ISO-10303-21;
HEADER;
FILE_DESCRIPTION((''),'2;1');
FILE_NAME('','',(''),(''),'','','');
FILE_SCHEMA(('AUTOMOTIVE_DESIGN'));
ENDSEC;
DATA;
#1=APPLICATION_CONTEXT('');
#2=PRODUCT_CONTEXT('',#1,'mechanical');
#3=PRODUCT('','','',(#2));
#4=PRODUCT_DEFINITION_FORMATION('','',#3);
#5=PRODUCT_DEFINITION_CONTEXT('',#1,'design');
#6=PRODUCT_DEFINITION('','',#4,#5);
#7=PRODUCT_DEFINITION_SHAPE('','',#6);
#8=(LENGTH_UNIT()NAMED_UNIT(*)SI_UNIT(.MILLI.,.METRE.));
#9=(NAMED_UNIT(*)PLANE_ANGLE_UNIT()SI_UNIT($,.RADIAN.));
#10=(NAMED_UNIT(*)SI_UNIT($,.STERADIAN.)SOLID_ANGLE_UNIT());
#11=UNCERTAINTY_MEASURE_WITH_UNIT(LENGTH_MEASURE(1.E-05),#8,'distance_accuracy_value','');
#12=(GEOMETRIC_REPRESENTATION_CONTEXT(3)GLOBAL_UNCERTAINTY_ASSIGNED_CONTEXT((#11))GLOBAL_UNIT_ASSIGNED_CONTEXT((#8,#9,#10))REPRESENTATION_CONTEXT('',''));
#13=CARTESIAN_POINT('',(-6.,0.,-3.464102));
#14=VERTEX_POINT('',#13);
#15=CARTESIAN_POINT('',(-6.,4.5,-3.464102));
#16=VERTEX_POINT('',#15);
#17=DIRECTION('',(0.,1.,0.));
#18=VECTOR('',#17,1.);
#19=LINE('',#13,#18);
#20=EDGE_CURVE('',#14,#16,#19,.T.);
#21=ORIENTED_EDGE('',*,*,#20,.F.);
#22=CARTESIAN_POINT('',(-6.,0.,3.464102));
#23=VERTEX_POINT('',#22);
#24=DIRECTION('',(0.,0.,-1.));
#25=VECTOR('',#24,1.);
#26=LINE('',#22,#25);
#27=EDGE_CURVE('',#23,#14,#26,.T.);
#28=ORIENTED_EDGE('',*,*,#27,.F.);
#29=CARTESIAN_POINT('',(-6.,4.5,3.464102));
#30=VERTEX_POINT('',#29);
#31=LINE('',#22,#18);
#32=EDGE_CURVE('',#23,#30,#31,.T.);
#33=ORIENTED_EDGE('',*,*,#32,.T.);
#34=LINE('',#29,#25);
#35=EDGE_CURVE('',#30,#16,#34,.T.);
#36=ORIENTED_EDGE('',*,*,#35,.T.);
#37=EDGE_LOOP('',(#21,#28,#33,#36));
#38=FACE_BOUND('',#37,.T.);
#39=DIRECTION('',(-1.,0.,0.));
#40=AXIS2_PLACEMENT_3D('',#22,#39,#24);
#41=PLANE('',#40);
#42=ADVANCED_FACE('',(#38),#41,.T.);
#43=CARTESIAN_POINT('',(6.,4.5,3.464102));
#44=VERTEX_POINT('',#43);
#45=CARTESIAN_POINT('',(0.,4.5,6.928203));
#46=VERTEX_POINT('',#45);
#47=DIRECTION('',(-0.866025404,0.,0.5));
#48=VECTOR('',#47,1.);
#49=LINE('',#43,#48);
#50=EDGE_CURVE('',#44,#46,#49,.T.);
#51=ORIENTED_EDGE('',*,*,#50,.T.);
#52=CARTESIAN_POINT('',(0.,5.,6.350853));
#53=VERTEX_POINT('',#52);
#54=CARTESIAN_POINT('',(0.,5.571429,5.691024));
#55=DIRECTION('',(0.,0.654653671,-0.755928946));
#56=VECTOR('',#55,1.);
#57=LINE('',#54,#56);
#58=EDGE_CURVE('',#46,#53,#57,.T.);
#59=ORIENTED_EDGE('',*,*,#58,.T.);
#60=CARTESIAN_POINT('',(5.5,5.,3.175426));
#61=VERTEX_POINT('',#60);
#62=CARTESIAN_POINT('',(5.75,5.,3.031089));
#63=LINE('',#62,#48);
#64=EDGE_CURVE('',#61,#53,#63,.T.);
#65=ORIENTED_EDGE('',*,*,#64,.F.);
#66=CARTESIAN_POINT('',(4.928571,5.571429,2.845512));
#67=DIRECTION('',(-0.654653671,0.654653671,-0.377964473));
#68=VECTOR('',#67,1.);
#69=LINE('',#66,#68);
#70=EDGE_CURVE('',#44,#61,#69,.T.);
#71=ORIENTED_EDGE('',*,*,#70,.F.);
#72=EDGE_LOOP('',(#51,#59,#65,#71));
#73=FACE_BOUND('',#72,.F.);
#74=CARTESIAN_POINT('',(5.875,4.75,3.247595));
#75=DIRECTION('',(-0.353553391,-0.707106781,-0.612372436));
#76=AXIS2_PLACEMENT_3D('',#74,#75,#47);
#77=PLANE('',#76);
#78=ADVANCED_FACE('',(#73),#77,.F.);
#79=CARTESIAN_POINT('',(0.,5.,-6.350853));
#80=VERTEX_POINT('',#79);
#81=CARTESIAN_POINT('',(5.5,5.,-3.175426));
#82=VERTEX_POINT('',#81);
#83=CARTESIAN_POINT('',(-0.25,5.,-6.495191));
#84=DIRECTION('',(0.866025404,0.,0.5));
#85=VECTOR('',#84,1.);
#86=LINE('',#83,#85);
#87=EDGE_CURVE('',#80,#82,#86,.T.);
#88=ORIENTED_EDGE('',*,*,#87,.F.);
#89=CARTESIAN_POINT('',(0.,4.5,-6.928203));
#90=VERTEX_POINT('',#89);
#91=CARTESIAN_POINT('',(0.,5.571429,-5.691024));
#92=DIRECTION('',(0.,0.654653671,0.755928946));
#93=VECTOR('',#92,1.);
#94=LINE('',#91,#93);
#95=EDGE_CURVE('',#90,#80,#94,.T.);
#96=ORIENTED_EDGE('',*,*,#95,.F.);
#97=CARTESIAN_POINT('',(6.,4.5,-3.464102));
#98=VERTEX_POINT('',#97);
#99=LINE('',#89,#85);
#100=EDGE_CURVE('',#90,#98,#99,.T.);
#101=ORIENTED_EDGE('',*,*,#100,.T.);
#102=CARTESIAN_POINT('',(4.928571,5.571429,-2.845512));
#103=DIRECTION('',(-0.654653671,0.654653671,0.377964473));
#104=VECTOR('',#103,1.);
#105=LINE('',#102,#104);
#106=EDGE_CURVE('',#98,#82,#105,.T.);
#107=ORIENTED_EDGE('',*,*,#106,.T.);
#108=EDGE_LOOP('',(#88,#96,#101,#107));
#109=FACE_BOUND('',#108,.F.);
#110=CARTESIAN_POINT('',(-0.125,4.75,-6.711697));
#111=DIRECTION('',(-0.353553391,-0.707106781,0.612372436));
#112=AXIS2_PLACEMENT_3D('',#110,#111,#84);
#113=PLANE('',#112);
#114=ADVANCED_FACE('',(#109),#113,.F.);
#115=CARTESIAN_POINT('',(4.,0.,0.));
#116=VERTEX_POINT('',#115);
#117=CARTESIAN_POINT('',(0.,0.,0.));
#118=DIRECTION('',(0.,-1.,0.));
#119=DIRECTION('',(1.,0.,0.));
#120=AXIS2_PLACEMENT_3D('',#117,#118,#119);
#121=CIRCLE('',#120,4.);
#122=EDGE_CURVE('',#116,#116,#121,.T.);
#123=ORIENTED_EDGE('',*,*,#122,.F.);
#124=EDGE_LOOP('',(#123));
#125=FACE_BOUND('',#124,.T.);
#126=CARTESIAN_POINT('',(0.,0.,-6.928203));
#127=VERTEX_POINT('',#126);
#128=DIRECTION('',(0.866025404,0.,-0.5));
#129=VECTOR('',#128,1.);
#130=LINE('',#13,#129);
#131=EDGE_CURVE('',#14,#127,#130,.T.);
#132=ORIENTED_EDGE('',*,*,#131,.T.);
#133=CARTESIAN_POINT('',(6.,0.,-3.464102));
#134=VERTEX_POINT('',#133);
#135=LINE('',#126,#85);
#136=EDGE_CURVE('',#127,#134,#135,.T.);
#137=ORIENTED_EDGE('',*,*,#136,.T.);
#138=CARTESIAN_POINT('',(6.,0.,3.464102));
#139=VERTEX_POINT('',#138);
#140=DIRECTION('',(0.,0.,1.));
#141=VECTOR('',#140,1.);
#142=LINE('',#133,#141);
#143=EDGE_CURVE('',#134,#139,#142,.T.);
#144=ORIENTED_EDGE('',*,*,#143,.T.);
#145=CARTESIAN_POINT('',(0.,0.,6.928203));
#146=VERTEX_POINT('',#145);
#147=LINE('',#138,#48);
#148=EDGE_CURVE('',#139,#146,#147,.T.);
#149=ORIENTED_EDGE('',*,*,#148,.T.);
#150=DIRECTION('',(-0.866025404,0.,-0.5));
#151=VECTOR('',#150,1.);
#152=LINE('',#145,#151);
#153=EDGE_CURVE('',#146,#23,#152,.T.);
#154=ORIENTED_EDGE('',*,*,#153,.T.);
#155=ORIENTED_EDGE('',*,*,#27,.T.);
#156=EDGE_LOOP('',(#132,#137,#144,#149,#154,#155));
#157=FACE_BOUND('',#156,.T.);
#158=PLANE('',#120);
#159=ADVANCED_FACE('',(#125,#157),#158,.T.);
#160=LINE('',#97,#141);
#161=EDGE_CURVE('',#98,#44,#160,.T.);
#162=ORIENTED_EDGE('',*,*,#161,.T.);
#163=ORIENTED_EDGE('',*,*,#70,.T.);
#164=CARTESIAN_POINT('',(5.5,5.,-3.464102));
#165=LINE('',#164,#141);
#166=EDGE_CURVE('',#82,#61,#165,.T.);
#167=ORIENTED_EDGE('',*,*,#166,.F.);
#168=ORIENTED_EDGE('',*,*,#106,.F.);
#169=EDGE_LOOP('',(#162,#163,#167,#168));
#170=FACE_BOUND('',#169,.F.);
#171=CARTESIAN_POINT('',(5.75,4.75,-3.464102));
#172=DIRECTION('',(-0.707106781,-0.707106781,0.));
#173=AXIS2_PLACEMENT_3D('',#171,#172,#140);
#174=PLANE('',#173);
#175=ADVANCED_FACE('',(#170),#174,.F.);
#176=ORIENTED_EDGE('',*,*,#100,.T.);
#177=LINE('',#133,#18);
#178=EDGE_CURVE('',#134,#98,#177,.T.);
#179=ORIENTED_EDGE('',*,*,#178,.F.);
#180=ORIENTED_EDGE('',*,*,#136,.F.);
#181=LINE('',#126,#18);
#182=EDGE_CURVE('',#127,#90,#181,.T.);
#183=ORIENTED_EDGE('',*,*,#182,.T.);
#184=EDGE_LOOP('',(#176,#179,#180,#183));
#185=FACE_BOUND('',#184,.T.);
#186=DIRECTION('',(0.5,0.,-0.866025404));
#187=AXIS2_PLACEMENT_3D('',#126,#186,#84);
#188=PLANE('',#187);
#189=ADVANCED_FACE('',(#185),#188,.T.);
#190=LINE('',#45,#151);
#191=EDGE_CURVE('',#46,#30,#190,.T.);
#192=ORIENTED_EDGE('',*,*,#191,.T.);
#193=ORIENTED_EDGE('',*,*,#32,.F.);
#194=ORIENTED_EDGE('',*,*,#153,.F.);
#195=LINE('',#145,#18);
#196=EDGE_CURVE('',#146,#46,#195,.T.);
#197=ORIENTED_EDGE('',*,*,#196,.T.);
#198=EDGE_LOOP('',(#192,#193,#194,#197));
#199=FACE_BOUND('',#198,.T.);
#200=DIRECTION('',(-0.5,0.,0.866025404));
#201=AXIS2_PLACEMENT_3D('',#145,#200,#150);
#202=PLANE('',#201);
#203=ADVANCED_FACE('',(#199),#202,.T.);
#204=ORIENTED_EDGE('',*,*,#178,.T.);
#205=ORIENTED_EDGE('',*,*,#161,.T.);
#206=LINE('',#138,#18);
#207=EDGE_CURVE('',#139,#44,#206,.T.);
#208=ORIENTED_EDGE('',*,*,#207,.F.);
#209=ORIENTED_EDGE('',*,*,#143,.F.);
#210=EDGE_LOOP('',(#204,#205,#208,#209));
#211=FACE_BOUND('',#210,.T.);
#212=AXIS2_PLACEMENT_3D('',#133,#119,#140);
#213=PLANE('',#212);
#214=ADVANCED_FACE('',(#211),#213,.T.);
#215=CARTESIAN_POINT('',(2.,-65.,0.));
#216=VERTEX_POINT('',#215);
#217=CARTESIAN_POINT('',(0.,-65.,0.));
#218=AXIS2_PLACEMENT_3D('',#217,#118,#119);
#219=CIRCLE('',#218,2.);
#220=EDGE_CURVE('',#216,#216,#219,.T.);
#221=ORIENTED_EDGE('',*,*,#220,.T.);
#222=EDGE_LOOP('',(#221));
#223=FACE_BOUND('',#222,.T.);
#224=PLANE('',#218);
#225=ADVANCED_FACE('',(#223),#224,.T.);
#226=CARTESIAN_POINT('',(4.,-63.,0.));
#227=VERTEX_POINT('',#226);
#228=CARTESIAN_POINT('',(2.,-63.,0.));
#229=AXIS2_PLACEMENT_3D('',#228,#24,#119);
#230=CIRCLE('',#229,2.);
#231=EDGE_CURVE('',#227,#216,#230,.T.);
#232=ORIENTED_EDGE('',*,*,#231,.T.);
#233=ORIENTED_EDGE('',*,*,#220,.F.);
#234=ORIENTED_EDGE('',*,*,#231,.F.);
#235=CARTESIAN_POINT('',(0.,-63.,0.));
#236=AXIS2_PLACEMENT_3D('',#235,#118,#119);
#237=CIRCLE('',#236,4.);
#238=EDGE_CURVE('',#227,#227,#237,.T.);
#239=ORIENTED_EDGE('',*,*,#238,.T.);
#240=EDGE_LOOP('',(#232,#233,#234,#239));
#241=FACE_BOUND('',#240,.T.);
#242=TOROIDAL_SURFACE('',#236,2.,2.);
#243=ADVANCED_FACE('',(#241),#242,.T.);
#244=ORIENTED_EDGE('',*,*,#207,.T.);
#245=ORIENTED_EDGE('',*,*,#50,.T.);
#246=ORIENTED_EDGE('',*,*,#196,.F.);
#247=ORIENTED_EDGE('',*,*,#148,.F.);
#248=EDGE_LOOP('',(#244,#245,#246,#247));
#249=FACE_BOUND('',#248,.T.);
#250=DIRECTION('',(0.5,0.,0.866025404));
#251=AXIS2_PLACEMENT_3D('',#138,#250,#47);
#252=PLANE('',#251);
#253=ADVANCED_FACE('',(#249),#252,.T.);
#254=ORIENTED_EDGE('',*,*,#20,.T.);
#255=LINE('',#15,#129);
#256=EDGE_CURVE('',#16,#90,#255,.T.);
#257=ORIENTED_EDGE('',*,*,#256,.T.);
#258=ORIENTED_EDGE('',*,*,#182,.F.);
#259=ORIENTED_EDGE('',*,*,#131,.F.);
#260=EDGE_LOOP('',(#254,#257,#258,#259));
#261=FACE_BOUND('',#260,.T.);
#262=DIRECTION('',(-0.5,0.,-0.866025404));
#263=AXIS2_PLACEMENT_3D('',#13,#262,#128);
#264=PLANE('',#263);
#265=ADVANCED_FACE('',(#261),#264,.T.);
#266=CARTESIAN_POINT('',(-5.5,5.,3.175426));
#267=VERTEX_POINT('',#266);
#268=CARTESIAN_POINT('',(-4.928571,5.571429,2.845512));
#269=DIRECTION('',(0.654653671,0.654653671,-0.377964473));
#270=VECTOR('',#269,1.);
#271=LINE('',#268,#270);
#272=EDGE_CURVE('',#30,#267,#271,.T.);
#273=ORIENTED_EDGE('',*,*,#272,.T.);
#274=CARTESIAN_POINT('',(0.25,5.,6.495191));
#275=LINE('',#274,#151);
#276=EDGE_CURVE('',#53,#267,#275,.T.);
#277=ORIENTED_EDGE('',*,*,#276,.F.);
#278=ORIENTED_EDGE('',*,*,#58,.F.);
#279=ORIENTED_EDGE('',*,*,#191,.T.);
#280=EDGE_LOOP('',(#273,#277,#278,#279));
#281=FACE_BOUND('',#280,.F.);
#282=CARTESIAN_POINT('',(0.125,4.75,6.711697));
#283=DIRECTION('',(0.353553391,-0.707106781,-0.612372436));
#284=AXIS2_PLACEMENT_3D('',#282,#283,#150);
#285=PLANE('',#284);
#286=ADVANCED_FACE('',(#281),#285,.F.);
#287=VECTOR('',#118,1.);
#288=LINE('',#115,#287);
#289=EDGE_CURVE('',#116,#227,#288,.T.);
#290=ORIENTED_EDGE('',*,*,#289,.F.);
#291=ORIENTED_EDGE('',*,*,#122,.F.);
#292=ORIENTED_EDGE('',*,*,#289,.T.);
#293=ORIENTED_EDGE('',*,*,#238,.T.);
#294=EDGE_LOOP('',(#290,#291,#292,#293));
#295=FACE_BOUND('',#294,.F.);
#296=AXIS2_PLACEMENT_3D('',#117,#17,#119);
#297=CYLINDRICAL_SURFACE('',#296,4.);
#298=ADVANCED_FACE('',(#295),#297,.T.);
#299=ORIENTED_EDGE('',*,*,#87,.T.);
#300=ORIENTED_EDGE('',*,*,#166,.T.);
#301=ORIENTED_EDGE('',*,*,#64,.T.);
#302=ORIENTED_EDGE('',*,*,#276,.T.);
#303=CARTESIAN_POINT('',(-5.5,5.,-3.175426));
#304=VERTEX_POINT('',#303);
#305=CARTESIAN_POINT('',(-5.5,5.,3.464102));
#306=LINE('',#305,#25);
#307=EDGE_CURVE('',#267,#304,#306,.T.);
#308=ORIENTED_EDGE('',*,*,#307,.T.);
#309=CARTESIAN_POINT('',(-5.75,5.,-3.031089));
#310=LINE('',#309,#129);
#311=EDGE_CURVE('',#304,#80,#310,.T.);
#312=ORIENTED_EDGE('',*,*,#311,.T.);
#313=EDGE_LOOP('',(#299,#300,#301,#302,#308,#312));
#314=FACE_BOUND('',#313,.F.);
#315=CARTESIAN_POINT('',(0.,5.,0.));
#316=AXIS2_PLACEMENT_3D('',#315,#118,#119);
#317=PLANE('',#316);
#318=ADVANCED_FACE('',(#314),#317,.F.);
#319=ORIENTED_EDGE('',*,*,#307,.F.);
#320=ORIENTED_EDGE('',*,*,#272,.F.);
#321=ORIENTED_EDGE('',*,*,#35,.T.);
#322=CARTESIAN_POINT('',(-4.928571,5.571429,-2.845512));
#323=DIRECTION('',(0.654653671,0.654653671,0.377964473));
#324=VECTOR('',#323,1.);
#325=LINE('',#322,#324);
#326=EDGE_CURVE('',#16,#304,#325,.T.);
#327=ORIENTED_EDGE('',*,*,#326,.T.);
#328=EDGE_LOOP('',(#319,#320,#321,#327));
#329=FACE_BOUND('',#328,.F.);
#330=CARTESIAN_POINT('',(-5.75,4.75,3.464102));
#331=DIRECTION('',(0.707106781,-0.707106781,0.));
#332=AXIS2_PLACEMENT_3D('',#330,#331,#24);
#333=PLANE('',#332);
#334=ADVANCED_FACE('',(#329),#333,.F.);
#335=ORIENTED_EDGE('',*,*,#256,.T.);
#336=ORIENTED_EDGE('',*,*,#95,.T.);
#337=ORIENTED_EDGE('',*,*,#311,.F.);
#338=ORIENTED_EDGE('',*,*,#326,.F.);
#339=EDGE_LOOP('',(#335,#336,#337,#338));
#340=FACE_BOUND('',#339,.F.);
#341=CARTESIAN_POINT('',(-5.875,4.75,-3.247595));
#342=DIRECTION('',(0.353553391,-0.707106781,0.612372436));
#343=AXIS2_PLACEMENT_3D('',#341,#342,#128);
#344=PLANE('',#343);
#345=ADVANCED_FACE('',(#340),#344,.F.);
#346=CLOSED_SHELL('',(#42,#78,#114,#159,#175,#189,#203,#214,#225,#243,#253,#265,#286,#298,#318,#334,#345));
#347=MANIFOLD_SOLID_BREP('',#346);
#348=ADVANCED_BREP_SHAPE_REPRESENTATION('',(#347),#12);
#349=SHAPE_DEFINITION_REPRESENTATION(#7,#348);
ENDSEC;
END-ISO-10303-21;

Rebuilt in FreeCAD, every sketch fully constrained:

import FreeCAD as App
import Part
import Sketcher
Q = App.Units.Quantity


def edges_at(feature, points):
    """Names of the edges that pass closest to the given points."""
    edges = feature.Shape.Edges
    near = lambda p: min(range(len(edges)), key=lambda i: edges[i].distToShape(Part.Vertex(*p))[0])
    return sorted({f"Edge{near(p) + 1}" for p in points})

doc = App.newDocument("Part")
body = doc.addObject("PartDesign::Body", "Body")

# Sketch on XZ plane
sketch1 = doc.addObject("Sketcher::SketchObject", "Sketch")
body.addObject(sketch1)
sketch1.AttachmentSupport = (doc.XZ_Plane, [""])
sketch1.MapMode = "FlatFace"
sketch1.addGeometry(Part.LineSegment(App.Vector(0, 6.928203, 0), App.Vector(-6, 3.464102, 0)), False)
sketch1.addGeometry(Part.LineSegment(App.Vector(-6, 3.464102, 0), App.Vector(-6, -3.464102, 0)), False)
sketch1.addGeometry(Part.LineSegment(App.Vector(-6, -3.464102, 0), App.Vector(0, -6.928203, 0)), False)
sketch1.addGeometry(Part.LineSegment(App.Vector(0, -6.928203, 0), App.Vector(6, -3.464102, 0)), False)
sketch1.addGeometry(Part.LineSegment(App.Vector(6, -3.464102, 0), App.Vector(6, 3.464102, 0)), False)
sketch1.addGeometry(Part.LineSegment(App.Vector(6, 3.464102, 0), App.Vector(0, 6.928203, 0)), False)
sketch1.addConstraint(Sketcher.Constraint("Coincident", 0, 2, 1, 1))
sketch1.addConstraint(Sketcher.Constraint("Coincident", 1, 2, 2, 1))
sketch1.addConstraint(Sketcher.Constraint("Coincident", 2, 2, 3, 1))
sketch1.addConstraint(Sketcher.Constraint("Coincident", 3, 2, 4, 1))
sketch1.addConstraint(Sketcher.Constraint("Coincident", 4, 2, 5, 1))
sketch1.addConstraint(Sketcher.Constraint("Coincident", 5, 2, 0, 1))
sketch1.addConstraint(Sketcher.Constraint("Vertical", 1))
sketch1.addConstraint(Sketcher.Constraint("Vertical", 4))
sketch1.addConstraint(Sketcher.Constraint("Symmetric", 0, 2, 3, 2, -1, 1))
sketch1.addConstraint(Sketcher.Constraint("Symmetric", 2, 2, 5, 2, -1, 1))
sketch1.addConstraint(Sketcher.Constraint("PointOnObject", 2, 2, -2))
sketch1.addConstraint(Sketcher.Constraint("Parallel", 2, 5))
sketch1.addConstraint(Sketcher.Constraint("Horizontal", 1, 2, 3, 2))
sketch1.addConstraint(Sketcher.Constraint("Angle", 0, Q("-150 deg")))
sketch1.addConstraint(Sketcher.Constraint("DistanceX", 0, 2, -1, 1, Q("6 mm")))
sketch1.addConstraint(Sketcher.Constraint("DistanceY", -1, 1, 0, 2, Q("3.464102 mm")))
pad1 = doc.addObject("PartDesign::Pad", "Pad")
body.addObject(pad1)
pad1.Profile = sketch1
pad1.Length = 5
pad1.Reversed = True
doc.recompute()

chamfer = doc.addObject("PartDesign::Chamfer", "Chamfer")
body.addObject(chamfer)
chamfer.Base = (pad1, edges_at(pad1, [
    (-3, 5, 5.196),
    (-6, 5, 0),
    (-3, 5, -5.196),
    (3, 5, -5.196),
    (6, 5, 0),
    (3, 5, 5.196),
]))
chamfer.Size = 0.5

# Sketch on XZ plane
sketch2 = doc.addObject("Sketcher::SketchObject", "Sketch001")
body.addObject(sketch2)
sketch2.AttachmentSupport = (doc.XZ_Plane, [""])
sketch2.MapMode = "FlatFace"
sketch2.addGeometry(Part.Circle(App.Vector(0, 0, 0), App.Vector(0, 0, 1), 4), False)
sketch2.addConstraint(Sketcher.Constraint("Coincident", 0, 3, -1, 1))
sketch2.addConstraint(Sketcher.Constraint("Diameter", 0, Q("8 mm")))
pad2 = doc.addObject("PartDesign::Pad", "Pad001")
body.addObject(pad2)
pad2.Profile = sketch2
pad2.Length = 65
doc.recompute()

fillet = doc.addObject("PartDesign::Fillet", "Fillet")
body.addObject(fillet)
fillet.Base = (pad2, edges_at(pad2, [(-4, -65, 0)]))
fillet.Radius = 2

doc.recompute()
